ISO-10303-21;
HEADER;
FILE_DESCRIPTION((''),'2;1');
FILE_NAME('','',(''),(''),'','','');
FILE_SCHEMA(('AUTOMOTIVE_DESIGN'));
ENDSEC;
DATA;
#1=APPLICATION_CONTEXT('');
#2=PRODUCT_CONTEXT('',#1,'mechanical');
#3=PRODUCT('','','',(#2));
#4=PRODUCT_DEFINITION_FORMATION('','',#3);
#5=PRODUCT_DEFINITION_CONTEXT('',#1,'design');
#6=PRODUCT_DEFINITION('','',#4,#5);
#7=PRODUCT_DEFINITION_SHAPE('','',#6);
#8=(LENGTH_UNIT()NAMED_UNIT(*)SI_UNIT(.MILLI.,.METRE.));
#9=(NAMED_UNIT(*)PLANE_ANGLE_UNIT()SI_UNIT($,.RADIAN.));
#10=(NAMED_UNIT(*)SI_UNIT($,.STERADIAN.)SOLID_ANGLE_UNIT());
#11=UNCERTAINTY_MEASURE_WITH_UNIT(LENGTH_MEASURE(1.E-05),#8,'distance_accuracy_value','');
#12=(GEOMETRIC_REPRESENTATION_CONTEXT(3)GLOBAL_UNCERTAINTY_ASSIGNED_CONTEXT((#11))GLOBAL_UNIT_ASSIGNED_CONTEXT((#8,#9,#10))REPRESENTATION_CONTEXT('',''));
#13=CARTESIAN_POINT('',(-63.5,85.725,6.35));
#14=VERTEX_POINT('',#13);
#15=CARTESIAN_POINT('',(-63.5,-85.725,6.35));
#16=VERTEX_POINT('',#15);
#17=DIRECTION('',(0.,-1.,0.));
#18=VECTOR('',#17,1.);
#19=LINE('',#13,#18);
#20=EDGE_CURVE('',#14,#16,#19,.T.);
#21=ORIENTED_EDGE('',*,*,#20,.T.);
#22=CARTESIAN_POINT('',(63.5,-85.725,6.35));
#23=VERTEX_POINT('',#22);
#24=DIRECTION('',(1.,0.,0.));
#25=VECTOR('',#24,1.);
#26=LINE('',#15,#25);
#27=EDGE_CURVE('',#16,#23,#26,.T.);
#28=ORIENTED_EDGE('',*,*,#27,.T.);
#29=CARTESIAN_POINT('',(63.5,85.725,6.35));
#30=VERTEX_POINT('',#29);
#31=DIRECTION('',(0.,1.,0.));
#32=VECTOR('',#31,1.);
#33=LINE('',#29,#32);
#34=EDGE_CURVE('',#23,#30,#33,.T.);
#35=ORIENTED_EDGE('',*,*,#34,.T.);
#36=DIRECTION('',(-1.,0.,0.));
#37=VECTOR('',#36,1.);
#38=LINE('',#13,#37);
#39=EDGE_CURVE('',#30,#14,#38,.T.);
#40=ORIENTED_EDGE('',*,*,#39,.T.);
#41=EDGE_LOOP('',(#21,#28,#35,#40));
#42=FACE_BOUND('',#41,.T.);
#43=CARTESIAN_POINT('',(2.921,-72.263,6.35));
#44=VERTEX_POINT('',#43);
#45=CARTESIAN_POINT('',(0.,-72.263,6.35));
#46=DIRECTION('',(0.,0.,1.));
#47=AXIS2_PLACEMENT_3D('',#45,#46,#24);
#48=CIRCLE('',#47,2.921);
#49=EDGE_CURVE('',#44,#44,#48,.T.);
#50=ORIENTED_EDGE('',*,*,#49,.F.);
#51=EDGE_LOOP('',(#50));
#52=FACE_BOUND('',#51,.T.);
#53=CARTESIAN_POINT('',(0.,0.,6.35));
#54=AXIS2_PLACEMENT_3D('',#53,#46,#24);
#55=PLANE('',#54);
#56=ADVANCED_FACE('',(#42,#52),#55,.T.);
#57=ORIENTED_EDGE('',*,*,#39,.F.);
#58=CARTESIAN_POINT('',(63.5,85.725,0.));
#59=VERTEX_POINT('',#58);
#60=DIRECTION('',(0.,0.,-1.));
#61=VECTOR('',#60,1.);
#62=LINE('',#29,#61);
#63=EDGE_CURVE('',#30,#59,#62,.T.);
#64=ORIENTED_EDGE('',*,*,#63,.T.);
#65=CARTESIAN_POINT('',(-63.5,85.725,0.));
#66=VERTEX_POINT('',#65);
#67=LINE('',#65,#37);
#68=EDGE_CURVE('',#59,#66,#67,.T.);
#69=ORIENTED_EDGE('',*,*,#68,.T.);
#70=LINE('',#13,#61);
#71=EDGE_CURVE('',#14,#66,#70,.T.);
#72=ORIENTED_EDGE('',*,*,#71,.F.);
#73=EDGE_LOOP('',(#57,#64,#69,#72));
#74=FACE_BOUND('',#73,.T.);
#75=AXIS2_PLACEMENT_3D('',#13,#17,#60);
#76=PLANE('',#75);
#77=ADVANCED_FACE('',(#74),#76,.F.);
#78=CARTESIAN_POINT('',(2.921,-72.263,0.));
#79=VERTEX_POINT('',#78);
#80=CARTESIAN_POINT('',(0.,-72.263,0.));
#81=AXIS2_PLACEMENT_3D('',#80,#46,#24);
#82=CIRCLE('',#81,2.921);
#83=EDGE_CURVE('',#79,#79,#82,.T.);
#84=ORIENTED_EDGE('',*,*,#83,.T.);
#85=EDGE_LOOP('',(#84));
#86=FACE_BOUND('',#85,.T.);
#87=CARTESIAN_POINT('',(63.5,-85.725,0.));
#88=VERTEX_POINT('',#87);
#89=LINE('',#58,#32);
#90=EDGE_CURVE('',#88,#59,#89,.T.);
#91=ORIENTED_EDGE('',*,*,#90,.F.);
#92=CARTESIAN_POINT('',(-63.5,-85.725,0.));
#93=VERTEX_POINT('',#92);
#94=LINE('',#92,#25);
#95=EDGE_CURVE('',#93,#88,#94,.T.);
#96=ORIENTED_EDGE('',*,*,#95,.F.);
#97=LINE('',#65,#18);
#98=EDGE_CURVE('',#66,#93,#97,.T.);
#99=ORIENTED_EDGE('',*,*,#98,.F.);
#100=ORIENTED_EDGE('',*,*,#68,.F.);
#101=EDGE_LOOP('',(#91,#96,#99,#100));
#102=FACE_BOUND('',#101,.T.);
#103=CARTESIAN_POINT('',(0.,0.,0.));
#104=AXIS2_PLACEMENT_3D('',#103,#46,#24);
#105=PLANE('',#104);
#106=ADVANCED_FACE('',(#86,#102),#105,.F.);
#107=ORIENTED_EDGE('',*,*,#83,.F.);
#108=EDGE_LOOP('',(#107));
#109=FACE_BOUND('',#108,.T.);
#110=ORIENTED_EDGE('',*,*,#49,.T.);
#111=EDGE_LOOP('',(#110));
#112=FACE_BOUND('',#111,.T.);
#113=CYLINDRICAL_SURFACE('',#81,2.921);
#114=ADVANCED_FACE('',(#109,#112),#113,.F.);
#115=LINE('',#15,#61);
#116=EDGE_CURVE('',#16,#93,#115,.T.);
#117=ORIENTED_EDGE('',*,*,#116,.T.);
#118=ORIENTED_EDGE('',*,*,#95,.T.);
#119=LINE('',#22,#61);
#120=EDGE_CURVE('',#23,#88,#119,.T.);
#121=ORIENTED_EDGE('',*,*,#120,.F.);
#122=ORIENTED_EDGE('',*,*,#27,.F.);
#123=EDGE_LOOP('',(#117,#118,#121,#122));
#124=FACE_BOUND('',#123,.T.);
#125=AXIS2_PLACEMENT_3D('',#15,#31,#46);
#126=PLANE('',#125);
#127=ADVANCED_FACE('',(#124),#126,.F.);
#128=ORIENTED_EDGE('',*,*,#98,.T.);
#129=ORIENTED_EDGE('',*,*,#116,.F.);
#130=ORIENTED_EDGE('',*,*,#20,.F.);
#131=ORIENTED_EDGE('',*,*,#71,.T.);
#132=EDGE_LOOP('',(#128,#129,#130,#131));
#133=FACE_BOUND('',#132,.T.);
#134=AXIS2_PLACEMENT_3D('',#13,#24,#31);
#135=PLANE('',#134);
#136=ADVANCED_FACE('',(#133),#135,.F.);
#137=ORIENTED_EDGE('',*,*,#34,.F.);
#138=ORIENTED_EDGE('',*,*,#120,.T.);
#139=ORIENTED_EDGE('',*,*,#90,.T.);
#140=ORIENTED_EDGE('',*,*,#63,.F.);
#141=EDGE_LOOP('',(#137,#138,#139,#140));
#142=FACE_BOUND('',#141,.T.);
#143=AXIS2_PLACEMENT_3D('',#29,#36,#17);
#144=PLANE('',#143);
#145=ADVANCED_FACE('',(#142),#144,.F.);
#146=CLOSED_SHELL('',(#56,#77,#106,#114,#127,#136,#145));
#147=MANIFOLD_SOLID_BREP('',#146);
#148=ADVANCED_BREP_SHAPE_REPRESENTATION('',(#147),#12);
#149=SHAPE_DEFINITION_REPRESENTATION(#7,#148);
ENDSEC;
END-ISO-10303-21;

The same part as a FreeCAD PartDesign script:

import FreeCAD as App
import Part
import Sketcher

V = App.Vector
Q = App.Units.Quantity


def add_polygon(sketch, points):
    """Adds a closed chain of lines whose ends are joined by coincident constraints."""
    first, n = sketch.GeometryCount, len(points)
    for a, b in zip(points, points[1:] + points[:1]):
        sketch.addGeometry(Part.LineSegment(App.Vector(*a, 0), App.Vector(*b, 0)), False)
    for i in range(n):
        sketch.addConstraint(Sketcher.Constraint("Coincident", first + i, 2, first + (i + 1) % n, 1))

doc = App.newDocument("Part")
body = doc.addObject("PartDesign::Body", "Body")

sketch1 = body.newObject("Sketcher::SketchObject", "Sketch")
sketch1.AttachmentSupport = (doc.getObject("XY_Plane"), [""])
sketch1.MapMode = "FlatFace"
add_polygon(sketch1, [(-64, 86), (-64, -86), (64, -86), (64, 86)])
sketch1.addConstraint([
    Sketcher.Constraint("Vertical", 0),
    Sketcher.Constraint("Horizontal", 1),
    Sketcher.Constraint("Vertical", 2),
    Sketcher.Constraint("Horizontal", 3),
    Sketcher.Constraint("Symmetric", 0, 2, 2, 2, -1, 1),
    Sketcher.Constraint("DistanceX", 1, 1, 1, 2, Q("5 in")),
    Sketcher.Constraint("DistanceY", 0, 2, 0, 1, Q("6.75 in")),
])
pad1 = body.newObject("PartDesign::Pad", "Pad")
pad1.Profile = sketch1
pad1.Length = Q("0.25 in")

sketch2 = body.newObject("Sketcher::SketchObject", "Sketch001")
sketch2.AttachmentSupport = (doc.getObject("XY_Plane"), [""])
sketch2.MapMode = "FlatFace"
sketch2.AttachmentOffset = App.Placement(V(0, 0, 0.25 * 25.4), App.Rotation())
sketch2.addGeometry(Part.Circle(V(0, -72.3, 0), V(0, 0, 1), 2.9), False)
sketch2.addConstraint([
    Sketcher.Constraint("PointOnObject", 0, 3, -2),
    Sketcher.Constraint("Diameter", 0, Q("0.23 in")),
    Sketcher.Constraint("DistanceY", 0, 3, -1, 1, Q("2.845 in")),
])
pocket1 = body.newObject("PartDesign::Pocket", "Pocket")
pocket1.Profile = sketch2
pocket1.Type = "ThroughAll"

doc.recompute()
